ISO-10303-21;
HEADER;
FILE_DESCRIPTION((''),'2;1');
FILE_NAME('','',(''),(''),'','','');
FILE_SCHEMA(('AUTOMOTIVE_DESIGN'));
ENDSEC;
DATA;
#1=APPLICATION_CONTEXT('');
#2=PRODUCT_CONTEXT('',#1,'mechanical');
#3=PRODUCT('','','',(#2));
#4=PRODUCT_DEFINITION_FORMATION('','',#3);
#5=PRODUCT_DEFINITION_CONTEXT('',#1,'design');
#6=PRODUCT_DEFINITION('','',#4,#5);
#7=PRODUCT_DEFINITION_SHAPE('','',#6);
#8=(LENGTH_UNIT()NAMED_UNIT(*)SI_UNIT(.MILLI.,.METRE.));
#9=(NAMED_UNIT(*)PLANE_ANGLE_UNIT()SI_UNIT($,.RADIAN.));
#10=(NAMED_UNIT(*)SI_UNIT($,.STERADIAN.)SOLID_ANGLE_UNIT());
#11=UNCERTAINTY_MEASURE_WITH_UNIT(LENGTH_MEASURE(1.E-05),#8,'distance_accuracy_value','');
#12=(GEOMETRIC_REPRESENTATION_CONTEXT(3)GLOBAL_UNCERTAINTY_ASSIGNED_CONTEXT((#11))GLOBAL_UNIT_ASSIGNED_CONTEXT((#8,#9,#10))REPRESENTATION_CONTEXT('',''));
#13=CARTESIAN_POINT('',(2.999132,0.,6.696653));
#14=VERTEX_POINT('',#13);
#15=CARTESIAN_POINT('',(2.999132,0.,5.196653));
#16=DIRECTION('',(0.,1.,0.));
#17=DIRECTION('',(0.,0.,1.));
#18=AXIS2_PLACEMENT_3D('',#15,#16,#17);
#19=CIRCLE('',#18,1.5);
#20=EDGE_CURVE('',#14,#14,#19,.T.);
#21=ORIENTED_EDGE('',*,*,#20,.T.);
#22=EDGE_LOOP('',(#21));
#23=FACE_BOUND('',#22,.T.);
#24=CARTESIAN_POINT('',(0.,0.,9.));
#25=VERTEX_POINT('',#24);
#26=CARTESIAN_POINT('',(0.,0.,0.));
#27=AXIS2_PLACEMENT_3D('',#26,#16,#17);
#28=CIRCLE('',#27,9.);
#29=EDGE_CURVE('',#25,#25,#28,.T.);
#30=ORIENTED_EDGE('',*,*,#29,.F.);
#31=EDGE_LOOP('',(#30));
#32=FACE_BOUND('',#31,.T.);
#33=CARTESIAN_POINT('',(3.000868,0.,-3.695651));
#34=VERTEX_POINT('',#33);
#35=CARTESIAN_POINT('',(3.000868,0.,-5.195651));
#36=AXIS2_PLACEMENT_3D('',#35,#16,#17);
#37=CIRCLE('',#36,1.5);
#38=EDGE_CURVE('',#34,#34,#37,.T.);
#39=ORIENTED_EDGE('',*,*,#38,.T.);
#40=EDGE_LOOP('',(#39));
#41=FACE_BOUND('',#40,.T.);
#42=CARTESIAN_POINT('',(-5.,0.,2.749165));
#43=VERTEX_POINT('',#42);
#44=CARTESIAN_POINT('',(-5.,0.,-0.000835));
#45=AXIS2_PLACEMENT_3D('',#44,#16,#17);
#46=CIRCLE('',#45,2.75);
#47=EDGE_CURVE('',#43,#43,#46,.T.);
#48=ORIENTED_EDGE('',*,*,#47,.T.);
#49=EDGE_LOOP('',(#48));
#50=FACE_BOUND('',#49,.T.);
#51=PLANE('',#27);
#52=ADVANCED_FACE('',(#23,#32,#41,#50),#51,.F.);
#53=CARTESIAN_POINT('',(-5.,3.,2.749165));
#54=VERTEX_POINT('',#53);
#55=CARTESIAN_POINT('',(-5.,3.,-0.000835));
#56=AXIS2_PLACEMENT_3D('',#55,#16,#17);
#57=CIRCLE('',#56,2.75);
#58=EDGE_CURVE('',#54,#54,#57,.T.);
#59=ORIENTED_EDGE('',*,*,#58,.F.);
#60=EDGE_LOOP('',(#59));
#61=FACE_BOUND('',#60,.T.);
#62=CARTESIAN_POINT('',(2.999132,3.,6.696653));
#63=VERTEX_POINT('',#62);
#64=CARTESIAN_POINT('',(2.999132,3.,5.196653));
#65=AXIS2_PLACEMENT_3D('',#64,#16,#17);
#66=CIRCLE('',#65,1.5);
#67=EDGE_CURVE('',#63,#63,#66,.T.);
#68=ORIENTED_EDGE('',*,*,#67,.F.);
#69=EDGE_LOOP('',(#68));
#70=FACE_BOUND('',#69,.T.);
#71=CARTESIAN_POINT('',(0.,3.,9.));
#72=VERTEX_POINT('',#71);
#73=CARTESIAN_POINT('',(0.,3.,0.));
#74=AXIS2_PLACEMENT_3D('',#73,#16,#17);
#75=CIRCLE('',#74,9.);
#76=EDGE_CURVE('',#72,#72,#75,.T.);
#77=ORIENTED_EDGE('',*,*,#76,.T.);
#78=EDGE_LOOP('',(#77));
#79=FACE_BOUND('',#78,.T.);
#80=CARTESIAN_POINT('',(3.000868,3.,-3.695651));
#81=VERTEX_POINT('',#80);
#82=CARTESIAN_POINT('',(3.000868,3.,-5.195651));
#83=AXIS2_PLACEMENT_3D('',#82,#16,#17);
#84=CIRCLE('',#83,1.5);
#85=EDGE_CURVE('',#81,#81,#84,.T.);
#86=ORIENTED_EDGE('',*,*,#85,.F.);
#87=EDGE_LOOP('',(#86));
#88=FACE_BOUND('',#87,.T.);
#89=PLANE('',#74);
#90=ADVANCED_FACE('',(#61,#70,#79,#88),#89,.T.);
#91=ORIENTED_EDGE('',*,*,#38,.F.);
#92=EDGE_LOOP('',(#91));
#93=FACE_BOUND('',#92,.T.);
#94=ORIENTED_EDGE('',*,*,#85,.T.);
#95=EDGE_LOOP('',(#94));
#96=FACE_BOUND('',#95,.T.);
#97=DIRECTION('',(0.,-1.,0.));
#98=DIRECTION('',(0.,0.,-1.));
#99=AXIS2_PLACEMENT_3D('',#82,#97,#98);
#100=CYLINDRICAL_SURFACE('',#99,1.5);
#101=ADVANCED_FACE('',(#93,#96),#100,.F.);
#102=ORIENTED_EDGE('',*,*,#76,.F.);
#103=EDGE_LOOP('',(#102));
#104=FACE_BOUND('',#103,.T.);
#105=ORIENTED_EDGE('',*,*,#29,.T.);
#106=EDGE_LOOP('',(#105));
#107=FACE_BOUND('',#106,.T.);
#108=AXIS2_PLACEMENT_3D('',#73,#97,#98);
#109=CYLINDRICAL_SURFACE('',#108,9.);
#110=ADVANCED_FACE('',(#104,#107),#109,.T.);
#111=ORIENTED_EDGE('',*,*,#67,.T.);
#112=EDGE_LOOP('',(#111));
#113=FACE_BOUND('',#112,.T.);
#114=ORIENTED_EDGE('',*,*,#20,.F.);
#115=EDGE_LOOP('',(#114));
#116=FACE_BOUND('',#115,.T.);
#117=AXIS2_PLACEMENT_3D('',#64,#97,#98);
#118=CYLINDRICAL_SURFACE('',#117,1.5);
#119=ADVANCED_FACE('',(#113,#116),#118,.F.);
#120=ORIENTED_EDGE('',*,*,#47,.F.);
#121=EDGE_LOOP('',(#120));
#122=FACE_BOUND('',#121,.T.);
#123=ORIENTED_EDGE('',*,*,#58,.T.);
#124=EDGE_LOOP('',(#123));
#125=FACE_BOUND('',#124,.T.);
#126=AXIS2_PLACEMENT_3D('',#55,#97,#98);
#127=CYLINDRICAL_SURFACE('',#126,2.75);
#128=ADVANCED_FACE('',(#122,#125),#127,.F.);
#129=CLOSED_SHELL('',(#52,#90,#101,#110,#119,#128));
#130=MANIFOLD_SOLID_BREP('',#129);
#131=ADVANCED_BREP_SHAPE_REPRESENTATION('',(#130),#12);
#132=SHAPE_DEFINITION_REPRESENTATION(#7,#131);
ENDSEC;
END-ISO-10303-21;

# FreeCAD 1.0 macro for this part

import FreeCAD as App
import Part
import Sketcher
from FreeCAD import Vector
Q = App.Units.Quantity

doc = App.newDocument("Part")
body = doc.addObject("PartDesign::Body", "Body")

sketch1 = doc.addObject("Sketcher::SketchObject", "Sketch")
body.addObject(sketch1)
sketch1.AttachmentSupport = (doc.XZ_Plane, [""])
sketch1.MapMode = "FlatFace"
sketch1.addGeometry([
    Part.Circle(Vector(0, 0, 0), Vector(0, 0, 1), 9),
    Part.Circle(Vector(3, 5.2, 0), Vector(0, 0, 1), 1.5),
    Part.Circle(Vector(-5, 0, 0), Vector(0, 0, 1), 2.8),
    Part.Circle(Vector(3, -5.2, 0), Vector(0, 0, 1), 1.5),
], False)
sketch1.addConstraint([
    Sketcher.Constraint("Coincident", 0, 3, -1, 1),
    Sketcher.Constraint("Equal", 1, 3),
    Sketcher.Constraint("Diameter", 0, Q("18 mm")),
    Sketcher.Constraint("Diameter", 1, Q("3 mm")),
    Sketcher.Constraint("Diameter", 2, Q("5.5 mm")),
    Sketcher.Constraint("DistanceX", 2, 3, -1, 1, Q("5 mm")),
    Sketcher.Constraint("DistanceX", -1, 1, 1, 3, Q("2.999132 mm")),
    Sketcher.Constraint("DistanceY", 3, 3, -1, 1, Q("5.195651 mm")),
    Sketcher.Constraint("DistanceY", 2, 3, 1, 3, Q("5.197489 mm")),
    Sketcher.Constraint("DistanceY", -1, 1, 1, 3, Q("5.196653 mm")),
    Sketcher.Constraint("DistanceX", -1, 1, 3, 3, Q("3.000868 mm")),
])
pad1 = doc.addObject("PartDesign::Pad", "Pad")
body.addObject(pad1)
pad1.Profile = sketch1
pad1.Length = 3
pad1.Reversed = True

doc.recompute()
